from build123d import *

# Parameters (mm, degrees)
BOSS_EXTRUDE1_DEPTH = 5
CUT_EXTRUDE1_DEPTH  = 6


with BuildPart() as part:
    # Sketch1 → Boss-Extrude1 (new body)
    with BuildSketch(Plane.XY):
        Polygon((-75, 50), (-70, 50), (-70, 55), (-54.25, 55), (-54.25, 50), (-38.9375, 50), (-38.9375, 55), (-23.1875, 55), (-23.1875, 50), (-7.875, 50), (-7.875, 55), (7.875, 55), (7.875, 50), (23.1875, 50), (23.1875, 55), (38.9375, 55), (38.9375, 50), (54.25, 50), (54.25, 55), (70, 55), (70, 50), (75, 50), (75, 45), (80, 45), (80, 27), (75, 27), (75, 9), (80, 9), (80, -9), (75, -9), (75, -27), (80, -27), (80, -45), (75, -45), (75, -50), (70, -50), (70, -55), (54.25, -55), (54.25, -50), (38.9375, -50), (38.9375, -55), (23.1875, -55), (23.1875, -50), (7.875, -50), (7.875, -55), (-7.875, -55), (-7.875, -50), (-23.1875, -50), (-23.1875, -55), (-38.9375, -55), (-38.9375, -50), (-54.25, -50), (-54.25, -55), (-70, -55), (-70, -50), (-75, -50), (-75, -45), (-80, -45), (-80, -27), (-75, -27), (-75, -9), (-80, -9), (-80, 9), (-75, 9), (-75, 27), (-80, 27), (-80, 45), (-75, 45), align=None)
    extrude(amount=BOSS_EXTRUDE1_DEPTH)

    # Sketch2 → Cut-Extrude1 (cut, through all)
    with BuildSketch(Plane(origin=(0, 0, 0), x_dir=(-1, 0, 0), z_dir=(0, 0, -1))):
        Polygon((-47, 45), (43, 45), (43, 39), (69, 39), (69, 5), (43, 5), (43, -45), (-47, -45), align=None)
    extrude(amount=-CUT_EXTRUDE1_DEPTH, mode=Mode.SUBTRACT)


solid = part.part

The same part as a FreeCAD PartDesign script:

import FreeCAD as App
import Part
import Sketcher

V = App.Vector
Q = App.Units.Quantity

doc = App.newDocument("Part")
body = doc.addObject("PartDesign::Body", "Body")

# Sketch on XY plane
sketch1 = body.newObject("Sketcher::SketchObject", "Sketch")
sketch1.AttachmentSupport = (doc.getObject("XY_Plane"), [""])
sketch1.MapMode = "FlatFace"
sketch1.addGeometry([
    Part.LineSegment(V(-70, 50, 0), V(-75, 50, 0)),  # 0
    Part.LineSegment(V(-75, 50, 0), V(-75, 45, 0)),  # 1
    Part.LineSegment(V(-75, 45, 0), V(-80, 45, 0)),  # 2
    Part.LineSegment(V(-80, 45, 0), V(-80, 27, 0)),  # 3
    Part.LineSegment(V(-80, 27, 0), V(-75, 27, 0)),  # 4
    Part.LineSegment(V(-75, 27, 0), V(-75, 9, 0)),  # 5
    Part.LineSegment(V(-75, 9, 0), V(-80, 9, 0)),  # 6
    Part.LineSegment(V(-80, 9, 0), V(-80, -9, 0)),  # 7
    Part.LineSegment(V(-80, -9, 0), V(-75, -9, 0)),  # 8
    Part.LineSegment(V(-75, -9, 0), V(-75, -27, 0)),  # 9
    Part.LineSegment(V(-75, -27, 0), V(-80, -27, 0)),  # 10
    Part.LineSegment(V(-80, -27, 0), V(-80, -45, 0)),  # 11
    Part.LineSegment(V(-80, -45, 0), V(-75, -45, 0)),  # 12
    Part.LineSegment(V(-75, -45, 0), V(-75, -50, 0)),  # 13
    Part.LineSegment(V(-75, -50, 0), V(-70, -50, 0)),  # 14
    Part.LineSegment(V(-70, -50, 0), V(-70, -55, 0)),  # 15
    Part.LineSegment(V(-70, -55, 0), V(-54, -55, 0)),  # 16
    Part.LineSegment(V(-54, -55, 0), V(-54, -50, 0)),  # 17
    Part.LineSegment(V(-54, -50, 0), V(-39, -50, 0)),  # 18
    Part.LineSegment(V(-39, -50, 0), V(-39, -55, 0)),  # 19
    Part.LineSegment(V(-39, -55, 0), V(-23, -55, 0)),  # 20
    Part.LineSegment(V(-23, -55, 0), V(-23, -50, 0)),  # 21
    Part.LineSegment(V(-23, -50, 0), V(-8, -50, 0)),  # 22
    Part.LineSegment(V(-8, -50, 0), V(-8, -55, 0)),  # 23
    Part.LineSegment(V(-8, -55, 0), V(8, -55, 0)),  # 24
    Part.LineSegment(V(8, -55, 0), V(8, -50, 0)),  # 25
    Part.LineSegment(V(8, -50, 0), V(23, -50, 0)),  # 26
    Part.LineSegment(V(23, -50, 0), V(23, -55, 0)),  # 27
    Part.LineSegment(V(23, -55, 0), V(39, -55, 0)),  # 28
    Part.LineSegment(V(39, -55, 0), V(39, -50, 0)),  # 29
    Part.LineSegment(V(39, -50, 0), V(54, -50, 0)),  # 30
    Part.LineSegment(V(54, -50, 0), V(54, -55, 0)),  # 31
    Part.LineSegment(V(54, -55, 0), V(70, -55, 0)),  # 32
    Part.LineSegment(V(70, -55, 0), V(70, -50, 0)),  # 33
    Part.LineSegment(V(70, -50, 0), V(75, -50, 0)),  # 34
    Part.LineSegment(V(75, -50, 0), V(75, -45, 0)),  # 35
    Part.LineSegment(V(75, -45, 0), V(80, -45, 0)),  # 36
    Part.LineSegment(V(80, -45, 0), V(80, -27, 0)),  # 37
    Part.LineSegment(V(80, -27, 0), V(75, -27, 0)),  # 38
    Part.LineSegment(V(75, -27, 0), V(75, -9, 0)),  # 39
    Part.LineSegment(V(75, -9, 0), V(80, -9, 0)),  # 40
    Part.LineSegment(V(80, -9, 0), V(80, 9, 0)),  # 41
    Part.LineSegment(V(80, 9, 0), V(75, 9, 0)),  # 42
    Part.LineSegment(V(75, 9, 0), V(75, 27, 0)),  # 43
    Part.LineSegment(V(75, 27, 0), V(80, 27, 0)),  # 44
    Part.LineSegment(V(80, 27, 0), V(80, 45, 0)),  # 45
    Part.LineSegment(V(80, 45, 0), V(75, 45, 0)),  # 46
    Part.LineSegment(V(75, 45, 0), V(75, 50, 0)),  # 47
    Part.LineSegment(V(75, 50, 0), V(70, 50, 0)),  # 48
    Part.LineSegment(V(70, 50, 0), V(70, 55, 0)),  # 49
    Part.LineSegment(V(70, 55, 0), V(54, 55, 0)),  # 50
    Part.LineSegment(V(54, 55, 0), V(54, 50, 0)),  # 51
    Part.LineSegment(V(54, 50, 0), V(39, 50, 0)),  # 52
    Part.LineSegment(V(39, 50, 0), V(39, 55, 0)),  # 53
    Part.LineSegment(V(39, 55, 0), V(23, 55, 0)),  # 54
    Part.LineSegment(V(23, 55, 0), V(23, 50, 0)),  # 55
    Part.LineSegment(V(23, 50, 0), V(8, 50, 0)),  # 56
    Part.LineSegment(V(8, 50, 0), V(8, 55, 0)),  # 57
    Part.LineSegment(V(8, 55, 0), V(-8, 55, 0)),  # 58
    Part.LineSegment(V(-8, 55, 0), V(-8, 50, 0)),  # 59
    Part.LineSegment(V(-8, 50, 0), V(-23, 50, 0)),  # 60
    Part.LineSegment(V(-23, 50, 0), V(-23, 55, 0)),  # 61
    Part.LineSegment(V(-23, 55, 0), V(-39, 55, 0)),  # 62
    Part.LineSegment(V(-39, 55, 0), V(-39, 50, 0)),  # 63
    Part.LineSegment(V(-39, 50, 0), V(-54, 50, 0)),  # 64
    Part.LineSegment(V(-54, 50, 0), V(-54, 55, 0)),  # 65
    Part.LineSegment(V(-54, 55, 0), V(-70, 55, 0)),  # 66
    Part.LineSegment(V(-70, 55, 0), V(-70, 50, 0)),  # 67
], False)
sketch1.addConstraint([
    Sketcher.Constraint("Coincident", 0, 2, 1, 1),
    Sketcher.Constraint("Coincident", 1, 2, 2, 1),
    Sketcher.Constraint("Coincident", 2, 2, 3, 1),
    Sketcher.Constraint("Coincident", 3, 2, 4, 1),
    Sketcher.Constraint("Coincident", 4, 2, 5, 1),
    Sketcher.Constraint("Coincident", 5, 2, 6, 1),
    Sketcher.Constraint("Coincident", 6, 2, 7, 1),
    Sketcher.Constraint("Coincident", 7, 2, 8, 1),
    Sketcher.Constraint("Coincident", 8, 2, 9, 1),
    Sketcher.Constraint("Coincident", 9, 2, 10, 1),
    Sketcher.Constraint("Coincident", 10, 2, 11, 1),
    Sketcher.Constraint("Coincident", 11, 2, 12, 1),
    Sketcher.Constraint("Coincident", 12, 2, 13, 1),
    Sketcher.Constraint("Coincident", 13, 2, 14, 1),
    Sketcher.Constraint("Coincident", 14, 2, 15, 1),
    Sketcher.Constraint("Coincident", 15, 2, 16, 1),
    Sketcher.Constraint("Coincident", 16, 2, 17, 1),
    Sketcher.Constraint("Coincident", 17, 2, 18, 1),
    Sketcher.Constraint("Coincident", 18, 2, 19, 1),
    Sketcher.Constraint("Coincident", 19, 2, 20, 1),
    Sketcher.Constraint("Coincident", 20, 2, 21, 1),
    Sketcher.Constraint("Coincident", 21, 2, 22, 1),
    Sketcher.Constraint("Coincident", 22, 2, 23, 1),
    Sketcher.Constraint("Coincident", 23, 2, 24, 1),
    Sketcher.Constraint("Coincident", 24, 2, 25, 1),
    Sketcher.Constraint("Coincident", 25, 2, 26, 1),
    Sketcher.Constraint("Coincident", 26, 2, 27, 1),
    Sketcher.Constraint("Coincident", 27, 2, 28, 1),
    Sketcher.Constraint("Coincident", 28, 2, 29, 1),
    Sketcher.Constraint("Coincident", 29, 2, 30, 1),
    Sketcher.Constraint("Coincident", 30, 2, 31, 1),
    Sketcher.Constraint("Coincident", 31, 2, 32, 1),
    Sketcher.Constraint("Coincident", 32, 2, 33, 1),
    Sketcher.Constraint("Coincident", 33, 2, 34, 1),
    Sketcher.Constraint("Coincident", 34, 2, 35, 1),
    Sketcher.Constraint("Coincident", 35, 2, 36, 1),
    Sketcher.Constraint("Coincident", 36, 2, 37, 1),
    Sketcher.Constraint("Coincident", 37, 2, 38, 1),
    Sketcher.Constraint("Coincident", 38, 2, 39, 1),
    Sketcher.Constraint("Coincident", 39, 2, 40, 1),
    Sketcher.Constraint("Coincident", 40, 2, 41, 1),
    Sketcher.Constraint("Coincident", 41, 2, 42, 1),
    Sketcher.Constraint("Coincident", 42, 2, 43, 1),
    Sketcher.Constraint("Coincident", 43, 2, 44, 1),
    Sketcher.Constraint("Coincident", 44, 2, 45, 1),
    Sketcher.Constraint("Coincident", 45, 2, 46, 1),
    Sketcher.Constraint("Coincident", 46, 2, 47, 1),
    Sketcher.Constraint("Coincident", 47, 2, 48, 1),
    Sketcher.Constraint("Coincident", 48, 2, 49, 1),
    Sketcher.Constraint("Coincident", 49, 2, 50, 1),
    Sketcher.Constraint("Coincident", 50, 2, 51, 1),
    Sketcher.Constraint("Coincident", 51, 2, 52, 1),
    Sketcher.Constraint("Coincident", 52, 2, 53, 1),
    Sketcher.Constraint("Coincident", 53, 2, 54, 1),
    Sketcher.Constraint("Coincident", 54, 2, 55, 1),
    Sketcher.Constraint("Coincident", 55, 2, 56, 1),
    Sketcher.Constraint("Coincident", 56, 2, 57, 1),
    Sketcher.Constraint("Coincident", 57, 2, 58, 1),
    Sketcher.Constraint("Coincident", 58, 2, 59, 1),
    Sketcher.Constraint("Coincident", 59, 2, 60, 1),
    Sketcher.Constraint("Coincident", 60, 2, 61, 1),
    Sketcher.Constraint("Coincident", 61, 2, 62, 1),
    Sketcher.Constraint("Coincident", 62, 2, 63, 1),
    Sketcher.Constraint("Coincident", 63, 2, 64, 1),
    Sketcher.Constraint("Coincident", 64, 2, 65, 1),
    Sketcher.Constraint("Coincident", 65, 2, 66, 1),
    Sketcher.Constraint("Coincident", 66, 2, 67, 1),
    Sketcher.Constraint("Coincident", 67, 2, 0, 1),
    Sketcher.Constraint("Horizontal", 0),
    Sketcher.Constraint("Vertical", 1),
    Sketcher.Constraint("Horizontal", 2),
    Sketcher.Constraint("Vertical", 3),
    Sketcher.Constraint("Horizontal", 4),
    Sketcher.Constraint("Vertical", 5),
    Sketcher.Constraint("Horizontal", 6),
    Sketcher.Constraint("Vertical", 7),
    Sketcher.Constraint("Horizontal", 8),
    Sketcher.Constraint("Vertical", 9),
    Sketcher.Constraint("Horizontal", 10),
    Sketcher.Constraint("Vertical", 11),
    Sketcher.Constraint("Horizontal", 12),
    Sketcher.Constraint("Vertical", 13),
    Sketcher.Constraint("Horizontal", 14),
    Sketcher.Constraint("Vertical", 15),
    Sketcher.Constraint("Horizontal", 16),
    Sketcher.Constraint("Vertical", 17),
    Sketcher.Constraint("Horizontal", 18),
    Sketcher.Constraint("Vertical", 19),
    Sketcher.Constraint("Horizontal", 20),
    Sketcher.Constraint("Vertical", 21),
    Sketcher.Constraint("Horizontal", 22),
    Sketcher.Constraint("Vertical", 23),
    Sketcher.Constraint("Horizontal", 24),
    Sketcher.Constraint("Vertical", 25),
    Sketcher.Constraint("Horizontal", 26),
    Sketcher.Constraint("Vertical", 27),
    Sketcher.Constraint("Horizontal", 28),
    Sketcher.Constraint("Vertical", 29),
    Sketcher.Constraint("Horizontal", 30),
    Sketcher.Constraint("Vertical", 31),
    Sketcher.Constraint("Horizontal", 32),
    Sketcher.Constraint("Vertical", 33),
    Sketcher.Constraint("Horizontal", 34),
    Sketcher.Constraint("Vertical", 35),
    Sketcher.Constraint("Horizontal", 36),
    Sketcher.Constraint("Vertical", 37),
    Sketcher.Constraint("Horizontal", 38),
    Sketcher.Constraint("Vertical", 39),
    Sketcher.Constraint("Horizontal", 40),
    Sketcher.Constraint("Vertical", 41),
    Sketcher.Constraint("Horizontal", 42),
    Sketcher.Constraint("Vertical", 43),
    Sketcher.Constraint("Horizontal", 44),
    Sketcher.Constraint("Vertical", 45),
    Sketcher.Constraint("Horizontal", 46),
    Sketcher.Constraint("Vertical", 47),
    Sketcher.Constraint("Horizontal", 48),
    Sketcher.Constraint("Vertical", 49),
    Sketcher.Constraint("Horizontal", 50),
    Sketcher.Constraint("Vertical", 51),
    Sketcher.Constraint("Horizontal", 52),
    Sketcher.Constraint("Vertical", 53),
    Sketcher.Constraint("Horizontal", 54),
    Sketcher.Constraint("Vertical", 55),
    Sketcher.Constraint("Horizontal", 56),
    Sketcher.Constraint("Vertical", 57),
    Sketcher.Constraint("Horizontal", 58),
    Sketcher.Constraint("Vertical", 59),
    Sketcher.Constraint("Horizontal", 60),
    Sketcher.Constraint("Vertical", 61),
    Sketcher.Constraint("Horizontal", 62),
    Sketcher.Constraint("Vertical", 63),
    Sketcher.Constraint("Horizontal", 64),
    Sketcher.Constraint("Vertical", 65),
    Sketcher.Constraint("Horizontal", 66),
    Sketcher.Constraint("Vertical", 67),
    Sketcher.Constraint("Symmetric", 0, 2, 34, 2, -1, 1),
    Sketcher.Constraint("Symmetric", 2, 2, 36, 2, -1, 1),
    Sketcher.Constraint("Symmetric", 4, 2, 38, 2, -1, 1),
    Sketcher.Constraint("Symmetric", 6, 2, 40, 2, -1, 1),
    Sketcher.Constraint("Symmetric", 8, 2, 42, 2, -1, 1),
    Sketcher.Constraint("Symmetric", 10, 2, 44, 2, -1, 1),
    Sketcher.Constraint("Symmetric", 12, 2, 46, 2, -1, 1),
    Sketcher.Constraint("Symmetric", 14, 2, 48, 2, -1, 1),
    Sketcher.Constraint("Symmetric", 16, 2, 50, 2, -1, 1),
    Sketcher.Constraint("Symmetric", 18, 2, 52, 2, -1, 1),
    Sketcher.Constraint("Symmetric", 20, 2, 54, 2, -1, 1),
    Sketcher.Constraint("Symmetric", 22, 2, 56, 2, -1, 1),
    Sketcher.Constraint("Symmetric", 24, 2, 58, 2, -1, 1),
    Sketcher.Constraint("Symmetric", 26, 2, 60, 2, -1, 1),
    Sketcher.Constraint("Symmetric", 28, 2, 62, 2, -1, 1),
    Sketcher.Constraint("Symmetric", 30, 2, 64, 2, -1, 1),
    Sketcher.Constraint("Symmetric", 32, 2, 66, 2, -1, 1),
    Sketcher.Constraint("Symmetric", 22, 2, 25, 2, -2),
    Sketcher.Constraint("Symmetric", 20, 2, 27, 2, -2),
    Sketcher.Constraint("Symmetric", 18, 2, 29, 2, -2),
    Sketcher.Constraint("Symmetric", 16, 2, 31, 2, -2),
    Sketcher.Constraint("Symmetric", 14, 2, 33, 2, -2),
    Sketcher.Constraint("Symmetric", 12, 2, 35, 2, -2),
    Sketcher.Constraint("Symmetric", 10, 2, 37, 2, -2),
    Sketcher.Constraint("Symmetric", 8, 2, 39, 2, -2),
    Sketcher.Constraint("Horizontal", 14, 2, 17, 2),
    Sketcher.Constraint("Horizontal", 16, 2, 19, 2),
    Sketcher.Constraint("Horizontal", 18, 2, 21, 2),
    Sketcher.Constraint("Horizontal", 20, 2, 23, 2),
    Sketcher.Constraint("Vertical", 1, 2, 4, 2),
    Sketcher.Constraint("Vertical", 3, 2, 6, 2),
    Sketcher.Constraint("Equal", 0, 2),
    Sketcher.Constraint("Equal", 16, 20),
    Sketcher.Constraint("Equal", 18, 22),
    Sketcher.Constraint("Equal", 20, 24),
    Sketcher.Constraint("Equal", 48, 1),
    Sketcher.Constraint("Equal", 3, 5),
    Sketcher.Constraint("Equal", 5, 7),
    Sketcher.Constraint("Equal", 13, 15),
    Sketcher.Constraint("DistanceX", 0, 2, 0, 1, Q("5 mm")),
    Sketcher.Constraint("DistanceY", 3, 2, 3, 1, Q("18 mm")),
    Sketcher.Constraint("DistanceX", 0, 2, -1, 1, Q("75 mm")),
    Sketcher.Constraint("DistanceX", 16, 1, 16, 2, Q("15.75 mm")),
])
pad1 = body.newObject("PartDesign::Pad", "Pad")
pad1.Profile = sketch1
pad1.Length = 5

# Sketch on XY plane
sketch2 = body.newObject("Sketcher::SketchObject", "Sketch001")
sketch2.AttachmentSupport = (doc.getObject("XY_Plane"), [""])
sketch2.MapMode = "FlatFace"
sketch2.addGeometry([
    Part.LineSegment(V(-43, 45, 0), V(47, 45, 0)),  # 0
    Part.LineSegment(V(47, 45, 0), V(47, -45, 0)),  # 1
    Part.LineSegment(V(47, -45, 0), V(-43, -45, 0)),  # 2
    Part.LineSegment(V(-43, -45, 0), V(-43, 5, 0)),  # 3
    Part.LineSegment(V(-43, 5, 0), V(-69, 5, 0)),  # 4
    Part.LineSegment(V(-69, 5, 0), V(-69, 39, 0)),  # 5
    Part.LineSegment(V(-69, 39, 0), V(-43, 39, 0)),  # 6
    Part.LineSegment(V(-43, 39, 0), V(-43, 45, 0)),  # 7
], False)
sketch2.addConstraint([
    Sketcher.Constraint("Coincident", 0, 2, 1, 1),
    Sketcher.Constraint("Coincident", 1, 2, 2, 1),
    Sketcher.Constraint("Coincident", 2, 2, 3, 1),
    Sketcher.Constraint("Coincident", 3, 2, 4, 1),
    Sketcher.Constraint("Coincident", 4, 2, 5, 1),
    Sketcher.Constraint("Coincident", 5, 2, 6, 1),
    Sketcher.Constraint("Coincident", 6, 2, 7, 1),
    Sketcher.Constraint("Coincident", 7, 2, 0, 1),
    Sketcher.Constraint("Horizontal", 0),
    Sketcher.Constraint("Vertical", 1),
    Sketcher.Constraint("Horizontal", 2),
    Sketcher.Constraint("Vertical", 3),
    Sketcher.Constraint("Horizontal", 4),
    Sketcher.Constraint("Vertical", 5),
    Sketcher.Constraint("Horizontal", 6),
    Sketcher.Constraint("Vertical", 7),
    Sketcher.Constraint("Symmetric", 2, 2, 7, 2, -1),
    Sketcher.Constraint("Equal", 2, 1),
    Sketcher.Constraint("DistanceX", 0, 1, 0, 2, Q("90 mm")),
    Sketcher.Constraint("DistanceX", 4, 2, 4, 1, Q("26 mm")),
    Sketcher.Constraint("DistanceY", 3, 1, 3, 2, Q("50 mm")),
    Sketcher.Constraint("DistanceY", 5, 1, 5, 2, Q("34 mm")),
    Sketcher.Constraint("DistanceX", -1, 1, 0, 2, Q("47 mm")),
])
pocket1 = body.newObject("PartDesign::Pocket", "Pocket")
pocket1.Profile = sketch2
pocket1.Type = "ThroughAll"
pocket1.Reversed = True

doc.recompute()
